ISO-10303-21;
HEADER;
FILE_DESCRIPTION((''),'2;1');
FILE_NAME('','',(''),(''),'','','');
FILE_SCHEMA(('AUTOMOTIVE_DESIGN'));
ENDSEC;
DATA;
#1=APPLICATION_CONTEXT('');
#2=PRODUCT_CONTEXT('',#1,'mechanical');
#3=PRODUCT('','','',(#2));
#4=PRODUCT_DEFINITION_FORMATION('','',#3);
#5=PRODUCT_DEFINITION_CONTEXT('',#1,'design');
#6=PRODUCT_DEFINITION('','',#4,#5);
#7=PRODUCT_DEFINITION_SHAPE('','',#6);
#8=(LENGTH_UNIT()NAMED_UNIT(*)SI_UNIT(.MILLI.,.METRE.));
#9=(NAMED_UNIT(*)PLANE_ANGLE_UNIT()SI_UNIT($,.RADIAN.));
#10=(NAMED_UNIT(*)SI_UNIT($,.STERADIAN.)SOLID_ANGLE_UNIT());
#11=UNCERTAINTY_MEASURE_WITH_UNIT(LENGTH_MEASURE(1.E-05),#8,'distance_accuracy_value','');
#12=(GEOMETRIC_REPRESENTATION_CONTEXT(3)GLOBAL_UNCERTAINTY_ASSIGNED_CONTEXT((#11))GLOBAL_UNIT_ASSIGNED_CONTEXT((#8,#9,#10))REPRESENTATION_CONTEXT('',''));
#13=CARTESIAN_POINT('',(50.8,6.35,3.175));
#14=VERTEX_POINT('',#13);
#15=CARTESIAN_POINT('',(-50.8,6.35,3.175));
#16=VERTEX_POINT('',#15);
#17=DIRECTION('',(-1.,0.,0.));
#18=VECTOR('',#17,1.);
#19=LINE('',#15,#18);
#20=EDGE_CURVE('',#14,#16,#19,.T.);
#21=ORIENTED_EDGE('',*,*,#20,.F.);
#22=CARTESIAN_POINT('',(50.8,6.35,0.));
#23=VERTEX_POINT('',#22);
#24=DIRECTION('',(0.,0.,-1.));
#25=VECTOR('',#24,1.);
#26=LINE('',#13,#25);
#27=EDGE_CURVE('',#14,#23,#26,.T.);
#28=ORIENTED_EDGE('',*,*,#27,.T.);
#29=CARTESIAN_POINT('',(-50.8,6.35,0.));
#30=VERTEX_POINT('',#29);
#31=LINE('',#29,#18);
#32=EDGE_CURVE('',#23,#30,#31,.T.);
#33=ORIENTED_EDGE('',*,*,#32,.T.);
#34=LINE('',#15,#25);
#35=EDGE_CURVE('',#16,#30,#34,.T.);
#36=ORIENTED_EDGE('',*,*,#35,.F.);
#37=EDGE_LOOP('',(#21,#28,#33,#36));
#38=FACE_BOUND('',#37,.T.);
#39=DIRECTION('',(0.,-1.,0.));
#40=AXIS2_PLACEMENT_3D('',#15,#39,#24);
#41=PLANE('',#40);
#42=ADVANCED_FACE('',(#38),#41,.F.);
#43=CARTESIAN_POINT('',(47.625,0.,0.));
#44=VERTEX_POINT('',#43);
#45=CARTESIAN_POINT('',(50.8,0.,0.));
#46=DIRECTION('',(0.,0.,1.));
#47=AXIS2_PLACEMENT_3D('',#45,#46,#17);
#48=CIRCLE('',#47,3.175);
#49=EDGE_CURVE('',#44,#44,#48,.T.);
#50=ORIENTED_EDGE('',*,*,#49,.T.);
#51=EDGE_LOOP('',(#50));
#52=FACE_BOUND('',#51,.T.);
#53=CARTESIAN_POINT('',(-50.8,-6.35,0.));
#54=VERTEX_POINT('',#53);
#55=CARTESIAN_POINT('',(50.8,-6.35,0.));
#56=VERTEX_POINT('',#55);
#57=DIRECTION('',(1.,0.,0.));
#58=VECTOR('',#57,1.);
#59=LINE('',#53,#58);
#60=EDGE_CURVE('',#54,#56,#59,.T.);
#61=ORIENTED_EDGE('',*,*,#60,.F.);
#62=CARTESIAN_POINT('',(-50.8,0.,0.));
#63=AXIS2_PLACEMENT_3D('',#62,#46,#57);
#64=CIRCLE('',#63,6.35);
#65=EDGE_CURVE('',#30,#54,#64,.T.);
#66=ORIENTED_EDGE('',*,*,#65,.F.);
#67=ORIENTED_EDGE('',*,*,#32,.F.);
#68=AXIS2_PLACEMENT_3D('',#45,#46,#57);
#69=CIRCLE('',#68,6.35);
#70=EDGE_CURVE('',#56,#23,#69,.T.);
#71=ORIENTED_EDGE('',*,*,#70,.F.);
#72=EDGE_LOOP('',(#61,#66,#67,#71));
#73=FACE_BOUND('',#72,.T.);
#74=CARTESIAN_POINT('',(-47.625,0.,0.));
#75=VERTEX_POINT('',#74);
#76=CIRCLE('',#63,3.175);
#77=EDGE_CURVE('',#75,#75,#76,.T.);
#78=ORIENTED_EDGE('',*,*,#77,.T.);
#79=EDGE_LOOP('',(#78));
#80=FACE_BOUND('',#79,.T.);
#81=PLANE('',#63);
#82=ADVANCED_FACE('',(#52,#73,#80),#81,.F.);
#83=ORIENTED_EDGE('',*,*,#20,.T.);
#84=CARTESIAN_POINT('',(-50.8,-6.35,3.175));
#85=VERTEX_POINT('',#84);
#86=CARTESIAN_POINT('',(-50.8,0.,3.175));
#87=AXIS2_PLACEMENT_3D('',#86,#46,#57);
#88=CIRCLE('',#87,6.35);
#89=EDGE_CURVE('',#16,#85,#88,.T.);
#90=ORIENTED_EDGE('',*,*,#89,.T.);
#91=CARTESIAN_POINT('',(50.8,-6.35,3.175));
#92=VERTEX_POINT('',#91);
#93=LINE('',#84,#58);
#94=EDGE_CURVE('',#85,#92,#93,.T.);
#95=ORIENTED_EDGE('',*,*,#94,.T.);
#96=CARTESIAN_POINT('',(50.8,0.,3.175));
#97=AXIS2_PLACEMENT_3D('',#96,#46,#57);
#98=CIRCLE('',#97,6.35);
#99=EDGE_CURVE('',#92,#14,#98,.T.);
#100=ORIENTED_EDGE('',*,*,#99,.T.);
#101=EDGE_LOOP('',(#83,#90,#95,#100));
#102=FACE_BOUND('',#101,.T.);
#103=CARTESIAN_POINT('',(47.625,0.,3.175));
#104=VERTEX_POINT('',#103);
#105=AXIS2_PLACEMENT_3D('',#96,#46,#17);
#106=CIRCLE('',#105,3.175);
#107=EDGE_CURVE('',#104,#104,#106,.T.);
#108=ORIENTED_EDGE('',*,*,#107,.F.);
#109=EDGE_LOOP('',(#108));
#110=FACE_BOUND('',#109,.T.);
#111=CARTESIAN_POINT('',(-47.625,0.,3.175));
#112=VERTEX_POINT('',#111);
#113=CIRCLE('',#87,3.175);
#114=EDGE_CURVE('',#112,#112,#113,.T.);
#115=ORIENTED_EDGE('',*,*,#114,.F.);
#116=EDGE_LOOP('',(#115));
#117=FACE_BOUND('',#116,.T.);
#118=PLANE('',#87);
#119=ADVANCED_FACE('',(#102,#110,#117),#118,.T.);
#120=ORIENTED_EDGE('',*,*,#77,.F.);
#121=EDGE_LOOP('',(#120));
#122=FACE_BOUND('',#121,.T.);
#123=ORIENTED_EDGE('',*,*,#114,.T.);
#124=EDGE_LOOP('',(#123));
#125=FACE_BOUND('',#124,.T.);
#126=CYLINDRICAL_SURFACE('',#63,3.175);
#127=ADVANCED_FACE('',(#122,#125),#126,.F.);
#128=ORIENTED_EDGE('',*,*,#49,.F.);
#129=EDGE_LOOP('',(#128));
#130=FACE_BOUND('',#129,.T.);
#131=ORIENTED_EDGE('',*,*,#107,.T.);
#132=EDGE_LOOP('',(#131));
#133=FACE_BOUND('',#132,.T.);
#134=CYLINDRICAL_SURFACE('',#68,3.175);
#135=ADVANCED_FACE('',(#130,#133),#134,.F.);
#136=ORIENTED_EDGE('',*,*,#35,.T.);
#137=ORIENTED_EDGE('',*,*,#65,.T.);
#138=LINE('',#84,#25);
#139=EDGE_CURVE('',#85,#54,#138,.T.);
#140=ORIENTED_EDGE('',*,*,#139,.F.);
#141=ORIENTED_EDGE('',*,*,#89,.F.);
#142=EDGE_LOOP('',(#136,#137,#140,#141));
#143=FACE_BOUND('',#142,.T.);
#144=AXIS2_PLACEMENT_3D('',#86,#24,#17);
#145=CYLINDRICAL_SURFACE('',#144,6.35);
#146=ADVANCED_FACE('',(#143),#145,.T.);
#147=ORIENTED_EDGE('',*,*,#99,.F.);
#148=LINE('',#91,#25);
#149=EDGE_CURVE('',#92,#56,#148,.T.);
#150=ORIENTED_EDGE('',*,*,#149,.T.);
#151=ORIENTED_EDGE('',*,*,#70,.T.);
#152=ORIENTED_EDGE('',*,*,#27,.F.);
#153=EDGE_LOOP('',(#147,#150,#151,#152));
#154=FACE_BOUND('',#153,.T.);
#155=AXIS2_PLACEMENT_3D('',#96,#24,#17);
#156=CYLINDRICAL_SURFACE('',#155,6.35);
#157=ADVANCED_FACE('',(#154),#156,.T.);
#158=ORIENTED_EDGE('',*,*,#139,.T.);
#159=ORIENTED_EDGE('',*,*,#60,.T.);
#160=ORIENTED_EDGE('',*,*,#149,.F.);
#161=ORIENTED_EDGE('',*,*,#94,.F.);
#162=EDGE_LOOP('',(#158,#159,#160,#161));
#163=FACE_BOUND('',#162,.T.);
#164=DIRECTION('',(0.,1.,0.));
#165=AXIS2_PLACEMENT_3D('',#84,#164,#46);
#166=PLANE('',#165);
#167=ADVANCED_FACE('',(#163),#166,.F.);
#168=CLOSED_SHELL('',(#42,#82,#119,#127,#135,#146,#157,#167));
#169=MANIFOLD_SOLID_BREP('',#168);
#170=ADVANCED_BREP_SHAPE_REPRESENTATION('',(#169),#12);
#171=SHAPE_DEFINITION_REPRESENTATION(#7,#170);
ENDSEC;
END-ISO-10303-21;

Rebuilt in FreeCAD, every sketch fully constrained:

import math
import FreeCAD as App
import Part
import Sketcher
Q = App.Units.Quantity

doc = App.newDocument("Part")
params = doc.addObject("Spreadsheet::Sheet", "Params")
for row, (alias, value) in enumerate([
    ("sketch1_width", "4 in"),
    ("sketch1_radius", "0.25 in"),
    ("pad1_length", "0.125 in"),
    ("sketch2_diameter", "0.25 in"),
], start=1):
    params.set(f"A{row}", alias)
    params.set(f"B{row}", "=" + value)
    params.setAlias(f"B{row}", alias)

body = doc.addObject("PartDesign::Body", "Body")

sketch1 = body.newObject("Sketcher::SketchObject", "Sketch")
sketch1.AttachmentSupport = (doc.getObject("XY_Plane"), [""])
sketch1.MapMode = "FlatFace"
sketch1.addGeometry(Part.LineSegment(App.Vector(51, 6, 0), App.Vector(-51, 6, 0)), False)
sketch1.addGeometry(Part.ArcOfCircle(Part.Circle(App.Vector(-51, 0, 0), App.Vector(0, 0, 1), 6), math.radians(90), math.radians(270)), False)
sketch1.addGeometry(Part.LineSegment(App.Vector(-51, -6, 0), App.Vector(51, -6, 0)), False)
sketch1.addGeometry(Part.ArcOfCircle(Part.Circle(App.Vector(51, 0, 0), App.Vector(0, 0, 1), 6), math.radians(-90), math.radians(90)), False)
sketch1.addConstraint(Sketcher.Constraint("Tangent", 0, 2, 1, 1))
sketch1.addConstraint(Sketcher.Constraint("Tangent", 1, 2, 2, 1))
sketch1.addConstraint(Sketcher.Constraint("Tangent", 2, 2, 3, 1))
sketch1.addConstraint(Sketcher.Constraint("Tangent", 3, 2, 0, 1))
sketch1.addConstraint(Sketcher.Constraint("Horizontal", 0))
sketch1.addConstraint(Sketcher.Constraint("Horizontal", 2))
sketch1.addConstraint(Sketcher.Constraint("Symmetric", 1, 3, 3, 3, -1, 1))
sketch1.addConstraint(Sketcher.Constraint("DistanceX", 0, 2, 0, 1, Q("4 in")))
sketch1.addConstraint(Sketcher.Constraint("Radius", 1, Q("0.25 in")))
sketch1.setExpression("Constraints[7]", "Params.sketch1_width")
sketch1.setExpression("Constraints[8]", "Params.sketch1_radius")
pad1 = body.newObject("PartDesign::Pad", "Pad")
pad1.Profile = sketch1
pad1.setExpression("Length", "Params.pad1_length")

sketch2 = body.newObject("Sketcher::SketchObject", "Sketch001")
sketch2.AttachmentSupport = (doc.getObject("XY_Plane"), [""])
sketch2.MapMode = "FlatFace"
sketch2.AttachmentOffset = App.Placement(App.Vector(0, 0, 0.125 * 25.4), App.Rotation())
sketch2.addGeometry(Part.Circle(App.Vector(-50.8, 0, 0), App.Vector(0, 0, 1), 3.2), False)
sketch2.addGeometry(Part.Circle(App.Vector(50.8, 0, 0), App.Vector(0, 0, 1), 3.2), False)
sketch2.addConstraint(Sketcher.Constraint("Equal", 0, 1))
sketch2.addConstraint(Sketcher.Constraint("Symmetric", 0, 3, 1, 3, -1, 1))
sketch2.addConstraint(Sketcher.Constraint("PointOnObject", 0, 3, -1))
sketch2.addConstraint(Sketcher.Constraint("Diameter", 0, Q("0.25 in")))
sketch2.addConstraint(Sketcher.Constraint("DistanceX", 0, 3, -1, 1, Q("2 in")))
sketch2.setExpression("Constraints[3]", "Params.sketch2_diameter")
pocket1 = body.newObject("PartDesign::Pocket", "Pocket")
pocket1.Profile = sketch2
pocket1.Type = "ThroughAll"

doc.recompute()
